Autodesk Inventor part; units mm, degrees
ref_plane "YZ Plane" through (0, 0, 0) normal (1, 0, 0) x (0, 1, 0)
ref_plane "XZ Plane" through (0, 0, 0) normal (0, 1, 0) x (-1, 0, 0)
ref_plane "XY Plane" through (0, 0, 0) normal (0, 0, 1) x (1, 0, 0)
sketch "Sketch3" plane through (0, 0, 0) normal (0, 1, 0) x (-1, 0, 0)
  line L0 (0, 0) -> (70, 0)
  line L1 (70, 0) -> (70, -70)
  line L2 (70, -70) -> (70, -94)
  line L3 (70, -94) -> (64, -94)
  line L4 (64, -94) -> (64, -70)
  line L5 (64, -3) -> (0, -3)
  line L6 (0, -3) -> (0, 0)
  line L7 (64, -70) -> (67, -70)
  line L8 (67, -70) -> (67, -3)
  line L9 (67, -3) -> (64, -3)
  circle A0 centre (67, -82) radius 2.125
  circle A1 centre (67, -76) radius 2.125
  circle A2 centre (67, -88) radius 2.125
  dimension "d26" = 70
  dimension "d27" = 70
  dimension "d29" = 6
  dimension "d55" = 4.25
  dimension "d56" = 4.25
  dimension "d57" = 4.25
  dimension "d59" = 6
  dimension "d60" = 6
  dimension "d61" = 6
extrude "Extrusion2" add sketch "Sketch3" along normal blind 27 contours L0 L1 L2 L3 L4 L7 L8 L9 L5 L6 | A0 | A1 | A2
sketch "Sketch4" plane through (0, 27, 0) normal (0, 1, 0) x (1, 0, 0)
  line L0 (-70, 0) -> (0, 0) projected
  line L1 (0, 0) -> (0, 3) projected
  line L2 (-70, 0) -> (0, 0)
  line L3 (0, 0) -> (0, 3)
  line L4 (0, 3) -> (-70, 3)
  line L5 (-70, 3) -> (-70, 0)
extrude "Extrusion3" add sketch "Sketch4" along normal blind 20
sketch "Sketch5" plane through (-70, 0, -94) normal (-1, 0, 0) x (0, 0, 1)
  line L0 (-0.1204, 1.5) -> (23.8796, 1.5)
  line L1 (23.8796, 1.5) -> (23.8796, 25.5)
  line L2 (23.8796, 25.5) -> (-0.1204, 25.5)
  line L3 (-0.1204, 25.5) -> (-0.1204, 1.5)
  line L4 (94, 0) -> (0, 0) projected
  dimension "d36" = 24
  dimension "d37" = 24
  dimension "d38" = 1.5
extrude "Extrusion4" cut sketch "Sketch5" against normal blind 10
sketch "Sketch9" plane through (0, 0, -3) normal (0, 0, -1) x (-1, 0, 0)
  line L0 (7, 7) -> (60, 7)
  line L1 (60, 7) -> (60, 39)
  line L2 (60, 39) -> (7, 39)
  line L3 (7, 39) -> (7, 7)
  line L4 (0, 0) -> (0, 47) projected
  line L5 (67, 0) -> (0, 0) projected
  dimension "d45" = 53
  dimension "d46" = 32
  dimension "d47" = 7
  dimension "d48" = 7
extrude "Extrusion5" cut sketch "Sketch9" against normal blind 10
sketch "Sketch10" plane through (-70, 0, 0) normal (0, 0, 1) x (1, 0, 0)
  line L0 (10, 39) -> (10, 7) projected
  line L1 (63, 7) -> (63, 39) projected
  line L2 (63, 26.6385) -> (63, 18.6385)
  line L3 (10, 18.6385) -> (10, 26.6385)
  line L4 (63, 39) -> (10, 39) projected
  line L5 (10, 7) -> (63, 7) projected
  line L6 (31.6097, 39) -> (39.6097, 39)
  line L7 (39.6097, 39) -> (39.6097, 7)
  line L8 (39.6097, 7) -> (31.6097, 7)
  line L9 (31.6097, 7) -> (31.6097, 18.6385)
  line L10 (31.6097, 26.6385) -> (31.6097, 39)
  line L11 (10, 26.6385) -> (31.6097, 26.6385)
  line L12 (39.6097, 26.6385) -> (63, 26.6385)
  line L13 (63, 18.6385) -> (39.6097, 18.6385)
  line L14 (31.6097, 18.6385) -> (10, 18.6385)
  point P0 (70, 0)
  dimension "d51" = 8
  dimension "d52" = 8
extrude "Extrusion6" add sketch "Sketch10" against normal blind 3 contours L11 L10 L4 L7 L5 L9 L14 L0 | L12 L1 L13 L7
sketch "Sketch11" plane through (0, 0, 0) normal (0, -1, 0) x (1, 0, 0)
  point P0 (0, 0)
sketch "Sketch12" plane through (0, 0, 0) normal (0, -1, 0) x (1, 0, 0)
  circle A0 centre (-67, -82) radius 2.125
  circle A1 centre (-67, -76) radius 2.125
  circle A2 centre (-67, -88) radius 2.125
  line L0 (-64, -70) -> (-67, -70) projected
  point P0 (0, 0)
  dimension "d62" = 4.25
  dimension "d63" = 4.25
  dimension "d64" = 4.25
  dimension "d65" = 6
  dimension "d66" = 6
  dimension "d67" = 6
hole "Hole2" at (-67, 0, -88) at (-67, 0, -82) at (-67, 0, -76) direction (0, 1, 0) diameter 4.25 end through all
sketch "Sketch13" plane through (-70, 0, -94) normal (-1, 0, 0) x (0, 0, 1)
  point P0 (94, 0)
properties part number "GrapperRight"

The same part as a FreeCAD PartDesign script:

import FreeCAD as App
import Part
import Sketcher
from FreeCAD import Vector

doc = App.newDocument("Part")
body = doc.addObject("PartDesign::Body", "Body")

# Sketch on XZ plane
sketch1 = body.newObject("Sketcher::SketchObject", "Sketch")
sketch1.AttachmentSupport = (doc.getObject("XZ_Plane"), [""])
sketch1.MapMode = "FlatFace"
sketch1.addGeometry([
    Part.LineSegment(Vector(-70, 0, 0), Vector(0, 0, 0)),  # 0
    Part.LineSegment(Vector(0, 0, 0), Vector(0, -3, 0)),  # 1
    Part.LineSegment(Vector(0, -3, 0), Vector(-67, -3, 0)),  # 2
    Part.LineSegment(Vector(-67, -3, 0), Vector(-67, -70, 0)),  # 3
    Part.LineSegment(Vector(-67, -70, 0), Vector(-64, -70, 0)),  # 4
    Part.LineSegment(Vector(-64, -70, 0), Vector(-64, -94, 0)),  # 5
    Part.LineSegment(Vector(-64, -94, 0), Vector(-70, -94, 0)),  # 6
    Part.LineSegment(Vector(-70, -94, 0), Vector(-70, 0, 0)),  # 7
], False)
sketch1.addConstraint([
    Sketcher.Constraint("Coincident", 0, 2, 1, 1),
    Sketcher.Constraint("Coincident", 1, 2, 2, 1),
    Sketcher.Constraint("Coincident", 2, 2, 3, 1),
    Sketcher.Constraint("Coincident", 3, 2, 4, 1),
    Sketcher.Constraint("Coincident", 4, 2, 5, 1),
    Sketcher.Constraint("Coincident", 5, 2, 6, 1),
    Sketcher.Constraint("Coincident", 6, 2, 7, 1),
    Sketcher.Constraint("Coincident", 7, 2, 0, 1),
    Sketcher.Constraint("Horizontal", 0),
    Sketcher.Constraint("Vertical", 1),
    Sketcher.Constraint("Horizontal", 2),
    Sketcher.Constraint("Vertical", 3),
    Sketcher.Constraint("Horizontal", 4),
    Sketcher.Constraint("Vertical", 5),
    Sketcher.Constraint("Horizontal", 6),
    Sketcher.Constraint("Vertical", 7),
    Sketcher.Constraint("Coincident", 0, 2, -1, 1),
    Sketcher.Constraint("Equal", 4, 1),
    Sketcher.Constraint("Equal", 2, 3),
    Sketcher.Constraint("DistanceX", 0, 1, 0, 2, 70.0),
    Sketcher.Constraint("DistanceX", 6, 2, 6, 1, 6.0),
    Sketcher.Constraint("DistanceY", 3, 2, -1, 1, 70.0),
    Sketcher.Constraint("DistanceY", 5, 2, 5, 1, 24.0),
])
pad1 = body.newObject("PartDesign::Pad", "Pad")
pad1.Profile = sketch1
pad1.Length = 27
pad1.Reversed = True

# Sketch on XZ plane
sketch2 = body.newObject("Sketcher::SketchObject", "Sketch001")
sketch2.AttachmentSupport = (doc.getObject("XZ_Plane"), [""])
sketch2.MapMode = "FlatFace"
sketch2.AttachmentOffset = App.Placement(Vector(0, 0, -27), App.Rotation())
sketch2.addGeometry([
    Part.LineSegment(Vector(-70, -3, 0), Vector(-70, 0, 0)),
    Part.LineSegment(Vector(-70, 0, 0), Vector(0, 0, 0)),
    Part.LineSegment(Vector(0, 0, 0), Vector(0, -3, 0)),
    Part.LineSegment(Vector(0, -3, 0), Vector(-70, -3, 0)),
], False)
sketch2.addConstraint([
    Sketcher.Constraint("Coincident", 0, 2, 1, 1),
    Sketcher.Constraint("Coincident", 1, 2, 2, 1),
    Sketcher.Constraint("Coincident", 2, 2, 3, 1),
    Sketcher.Constraint("Coincident", 3, 2, 0, 1),
    Sketcher.Constraint("Vertical", 0),
    Sketcher.Constraint("Horizontal", 1),
    Sketcher.Constraint("Vertical", 2),
    Sketcher.Constraint("Horizontal", 3),
    Sketcher.Constraint("Coincident", 1, 2, -1, 1),
    Sketcher.Constraint("DistanceX", 1, 1, 1, 2, 70.0),
    Sketcher.Constraint("DistanceY", 0, 1, 0, 2, 3.0),
])
pad2 = body.newObject("PartDesign::Pad", "Pad001")
pad2.Profile = sketch2
pad2.Length = 20
pad2.Reversed = True

# Sketch on YZ plane
sketch3 = body.newObject("Sketcher::SketchObject", "Sketch002")
sketch3.AttachmentSupport = (doc.getObject("YZ_Plane"), [""])
sketch3.MapMode = "FlatFace"
sketch3.AttachmentOffset = App.Placement(Vector(0, 0, -70), App.Rotation())
sketch3.addGeometry([
    Part.LineSegment(Vector(25.5, -94.1204, 0), Vector(1.5, -94.1204, 0)),
    Part.LineSegment(Vector(1.5, -94.1204, 0), Vector(1.5, -70.1204, 0)),
    Part.LineSegment(Vector(1.5, -70.1204, 0), Vector(25.5, -70.1204, 0)),
    Part.LineSegment(Vector(25.5, -70.1204, 0), Vector(25.5, -94.1204, 0)),
], False)
sketch3.addConstraint([
    Sketcher.Constraint("Coincident", 0, 2, 1, 1),
    Sketcher.Constraint("Coincident", 1, 2, 2, 1),
    Sketcher.Constraint("Coincident", 2, 2, 3, 1),
    Sketcher.Constraint("Coincident", 3, 2, 0, 1),
    Sketcher.Constraint("Horizontal", 0),
    Sketcher.Constraint("Vertical", 1),
    Sketcher.Constraint("Horizontal", 2),
    Sketcher.Constraint("Vertical", 3),
    Sketcher.Constraint("Equal", 2, 1),
    Sketcher.Constraint("DistanceX", 0, 2, 0, 1, 24.0),
    Sketcher.Constraint("DistanceX", -1, 1, 0, 2, 1.5),
    Sketcher.Constraint("DistanceY", 0, 2, -1, 1, 94.1204),
])
pocket1 = body.newObject("PartDesign::Pocket", "Pocket")
pocket1.Profile = sketch3
pocket1.Length = 10
pocket1.Reversed = True

# Sketch on XY plane
sketch4 = body.newObject("Sketcher::SketchObject", "Sketch003")
sketch4.AttachmentSupport = (doc.getObject("XY_Plane"), [""])
sketch4.MapMode = "FlatFace"
sketch4.AttachmentOffset = App.Placement(Vector(0, 0, -3), App.Rotation())
sketch4.addGeometry([
    Part.LineSegment(Vector(-7, 39, 0), Vector(-7, 7, 0)),
    Part.LineSegment(Vector(-7, 7, 0), Vector(-60, 7, 0)),
    Part.LineSegment(Vector(-60, 7, 0), Vector(-60, 39, 0)),
    Part.LineSegment(Vector(-60, 39, 0), Vector(-7, 39, 0)),
], False)
sketch4.addConstraint([
    Sketcher.Constraint("Coincident", 0, 2, 1, 1),
    Sketcher.Constraint("Coincident", 1, 2, 2, 1),
    Sketcher.Constraint("Coincident", 2, 2, 3, 1),
    Sketcher.Constraint("Coincident", 3, 2, 0, 1),
    Sketcher.Constraint("Vertical", 0),
    Sketcher.Constraint("Horizontal", 1),
    Sketcher.Constraint("Vertical", 2),
    Sketcher.Constraint("Horizontal", 3),
    Sketcher.Constraint("DistanceX", 1, 2, 1, 1, 53.0),
    Sketcher.Constraint("DistanceY", 0, 2, 0, 1, 32.0),
    Sketcher.Constraint("DistanceX", 0, 2, -1, 1, 7.0),
    Sketcher.Constraint("DistanceY", -1, 1, 0, 2, 7.0),
])
pocket2 = body.newObject("PartDesign::Pocket", "Pocket001")
pocket2.Profile = sketch4
pocket2.Length = 10
pocket2.Reversed = True

# Sketch on XY plane
sketch5 = body.newObject("Sketcher::SketchObject", "Sketch004")
sketch5.AttachmentSupport = (doc.getObject("XY_Plane"), [""])
sketch5.MapMode = "FlatFace"
sketch5.addGeometry([
    Part.LineSegment(Vector(-38.3903, 26.6385, 0), Vector(-60, 26.6385, 0)),  # 0
    Part.LineSegment(Vector(-60, 26.6385, 0), Vector(-60, 18.6385, 0)),  # 1
    Part.LineSegment(Vector(-60, 18.6385, 0), Vector(-38.3903, 18.6385, 0)),  # 2
    Part.LineSegment(Vector(-38.3903, 18.6385, 0), Vector(-38.3903, 7, 0)),  # 3
    Part.LineSegment(Vector(-38.3903, 7, 0), Vector(-30.3903, 7, 0)),  # 4
    Part.LineSegment(Vector(-30.3903, 7, 0), Vector(-30.3903, 18.6385, 0)),  # 5
    Part.LineSegment(Vector(-30.3903, 18.6385, 0), Vector(-7, 18.6385, 0)),  # 6
    Part.LineSegment(Vector(-7, 18.6385, 0), Vector(-7, 26.6385, 0)),  # 7
    Part.LineSegment(Vector(-7, 26.6385, 0), Vector(-30.3903, 26.6385, 0)),  # 8
    Part.LineSegment(Vector(-30.3903, 26.6385, 0), Vector(-30.3903, 39, 0)),  # 9
    Part.LineSegment(Vector(-30.3903, 39, 0), Vector(-38.3903, 39, 0)),  # 10
    Part.LineSegment(Vector(-38.3903, 39, 0), Vector(-38.3903, 26.6385, 0)),  # 11
], False)
sketch5.addConstraint([
    Sketcher.Constraint("Coincident", 0, 2, 1, 1),
    Sketcher.Constraint("Coincident", 1, 2, 2, 1),
    Sketcher.Constraint("Coincident", 2, 2, 3, 1),
    Sketcher.Constraint("Coincident", 3, 2, 4, 1),
    Sketcher.Constraint("Coincident", 4, 2, 5, 1),
    Sketcher.Constraint("Coincident", 5, 2, 6, 1),
    Sketcher.Constraint("Coincident", 6, 2, 7, 1),
    Sketcher.Constraint("Coincident", 7, 2, 8, 1),
    Sketcher.Constraint("Coincident", 8, 2, 9, 1),
    Sketcher.Constraint("Coincident", 9, 2, 10, 1),
    Sketcher.Constraint("Coincident", 10, 2, 11, 1),
    Sketcher.Constraint("Coincident", 11, 2, 0, 1),
    Sketcher.Constraint("Horizontal", 0),
    Sketcher.Constraint("Vertical", 1),
    Sketcher.Constraint("Horizontal", 2),
    Sketcher.Constraint("Vertical", 3),
    Sketcher.Constraint("Horizontal", 4),
    Sketcher.Constraint("Vertical", 5),
    Sketcher.Constraint("Horizontal", 6),
    Sketcher.Constraint("Vertical", 7),
    Sketcher.Constraint("Horizontal", 8),
    Sketcher.Constraint("Vertical", 9),
    Sketcher.Constraint("Horizontal", 10),
    Sketcher.Constraint("Vertical", 11),
    Sketcher.Constraint("Horizontal", 2, 2, 5, 2),
    Sketcher.Constraint("Horizontal", 0, 2, 7, 2),
    Sketcher.Constraint("Vertical", 5, 2, 8, 2),
    Sketcher.Constraint("Vertical", 3, 2, 10, 2),
    Sketcher.Constraint("Equal", 10, 1),
    Sketcher.Constraint("DistanceX", 4, 1, 4, 2, 8.0),
    Sketcher.Constraint("DistanceX", 0, 2, -1, 1, 60.0),
    Sketcher.Constraint("DistanceY", -1, 1, 3, 2, 7.0),
    Sketcher.Constraint("DistanceX", 6, 2, -1, 1, 7.0),
    Sketcher.Constraint("DistanceY", -1, 1, 9, 2, 39.0),
    Sketcher.Constraint("DistanceX", 0, 2, 0, 1, 21.6097),
    Sketcher.Constraint("DistanceY", 3, 2, 3, 1, 11.6385),
])
pad3 = body.newObject("PartDesign::Pad", "Pad002")
pad3.Profile = sketch5
pad3.Length = 3
pad3.Reversed = True

# Sketch on XZ plane
sketch6 = body.newObject("Sketcher::SketchObject", "Sketch005")
sketch6.AttachmentSupport = (doc.getObject("XZ_Plane"), [""])
sketch6.MapMode = "FlatFace"
sketch6.addGeometry([
    Part.Circle(Vector(-67, -88, 0), Vector(0, 0, 1), 2.125),
    Part.Circle(Vector(-67, -82, 0), Vector(0, 0, 1), 2.125),
    Part.Circle(Vector(-67, -76, 0), Vector(0, 0, 1), 2.125),
], False)
sketch6.addConstraint([
    Sketcher.Constraint("Equal", 0, 1),
    Sketcher.Constraint("Equal", 1, 2),
    Sketcher.Constraint("Vertical", 0, 3, 1, 3),
    Sketcher.Constraint("Vertical", 1, 3, 2, 3),
    Sketcher.Constraint("Diameter", 0, 4.25),
    Sketcher.Constraint("DistanceX", 0, 3, -1, 1, 67.0),
    Sketcher.Constraint("DistanceY", 0, 3, -1, 1, 88.0),
    Sketcher.Constraint("DistanceY", 1, 3, -1, 1, 82.0),
    Sketcher.Constraint("DistanceY", 2, 3, -1, 1, 76.0),
])
doc.recompute()
hole = body.newObject("PartDesign::Hole", "Hole")
hole.Profile = sketch6
hole.ThreadType = "None"
hole.Diameter = 4.25
hole.DepthType = "ThroughAll"

doc.recompute()
